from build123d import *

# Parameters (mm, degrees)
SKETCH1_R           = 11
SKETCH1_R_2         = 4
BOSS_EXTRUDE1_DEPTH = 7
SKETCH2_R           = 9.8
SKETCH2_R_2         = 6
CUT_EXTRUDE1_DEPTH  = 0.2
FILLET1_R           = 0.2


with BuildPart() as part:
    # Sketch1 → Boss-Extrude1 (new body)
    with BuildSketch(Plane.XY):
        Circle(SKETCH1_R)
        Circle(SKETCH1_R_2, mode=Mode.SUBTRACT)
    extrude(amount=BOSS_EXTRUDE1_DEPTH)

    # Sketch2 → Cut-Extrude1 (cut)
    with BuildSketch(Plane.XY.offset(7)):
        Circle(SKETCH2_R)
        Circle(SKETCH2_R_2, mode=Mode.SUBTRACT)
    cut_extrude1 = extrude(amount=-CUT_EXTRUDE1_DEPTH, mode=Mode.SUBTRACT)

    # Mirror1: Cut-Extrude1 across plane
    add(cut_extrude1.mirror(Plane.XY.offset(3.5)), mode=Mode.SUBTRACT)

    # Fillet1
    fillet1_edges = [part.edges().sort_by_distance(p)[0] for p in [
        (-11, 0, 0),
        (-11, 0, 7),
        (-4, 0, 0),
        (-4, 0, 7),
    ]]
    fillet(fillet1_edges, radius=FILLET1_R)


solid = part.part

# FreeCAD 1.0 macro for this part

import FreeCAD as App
import Part
import Sketcher

V = App.Vector


def edges_at(feature, points):
    """Names of the edges that pass closest to the given points."""
    edges = feature.Shape.Edges
    near = lambda p: min(range(len(edges)), key=lambda i: edges[i].distToShape(Part.Vertex(*p))[0])
    return sorted({f"Edge{near(p) + 1}" for p in points})

doc = App.newDocument("Part")
body = doc.addObject("PartDesign::Body", "Body")

# Sketch on XY plane
sketch1 = body.newObject("Sketcher::SketchObject", "Sketch")
sketch1.AttachmentSupport = (doc.getObject("XY_Plane"), [""])
sketch1.MapMode = "FlatFace"
sketch1.addGeometry([
    Part.Circle(V(0, 0, 0), V(0, 0, 1), 11),
    Part.Circle(V(0, 0, 0), V(0, 0, 1), 4),
], False)
sketch1.addConstraint([
    Sketcher.Constraint("Coincident", 0, 3, -1, 1),
    Sketcher.Constraint("Coincident", 1, 3, -1, 1),
    Sketcher.Constraint("Diameter", 0, 22.0),
    Sketcher.Constraint("Diameter", 1, 8.0),
])
pad1 = body.newObject("PartDesign::Pad", "Pad")
pad1.Profile = sketch1
pad1.Length = 7

# Sketch on XY plane
sketch2 = body.newObject("Sketcher::SketchObject", "Sketch001")
sketch2.AttachmentSupport = (doc.getObject("XY_Plane"), [""])
sketch2.MapMode = "FlatFace"
sketch2.AttachmentOffset = App.Placement(V(0, 0, 7), App.Rotation())
sketch2.addGeometry([
    Part.Circle(V(0, 0, 0), V(0, 0, 1), 10),
    Part.Circle(V(0, 0, 0), V(0, 0, 1), 6),
], False)
sketch2.addConstraint([
    Sketcher.Constraint("Coincident", 0, 3, -1, 1),
    Sketcher.Constraint("Coincident", 1, 3, -1, 1),
    Sketcher.Constraint("Diameter", 1, 12.0),
    Sketcher.Constraint("Diameter", 0, 19.6),
])
pocket1 = body.newObject("PartDesign::Pocket", "Pocket")
pocket1.Profile = sketch2
pocket1.Length = 0.2
doc.recompute()

datumplane = body.newObject("PartDesign::Plane", "DatumPlane")
datumplane.AttachmentSupport = (doc.getObject("XY_Plane"), [""])
datumplane.MapMode = "FlatFace"
datumplane.AttachmentOffset = App.Placement(V(0, 0, 3.5), App.Rotation())
mirrored = body.newObject("PartDesign::Mirrored", "Mirrored")
mirrored.Originals = [pocket1]
mirrored.MirrorPlane = (datumplane, [""])
body.Tip = mirrored
doc.recompute()

fillet = body.newObject("PartDesign::Fillet", "Fillet")
fillet.Base = (mirrored, edges_at(mirrored, [
    (-11, 0, 0),
    (-11, 0, 7),
    (-4, 0, 0),
    (-4, 0, 7),
]))
fillet.Radius = 0.2

doc.recompute()
